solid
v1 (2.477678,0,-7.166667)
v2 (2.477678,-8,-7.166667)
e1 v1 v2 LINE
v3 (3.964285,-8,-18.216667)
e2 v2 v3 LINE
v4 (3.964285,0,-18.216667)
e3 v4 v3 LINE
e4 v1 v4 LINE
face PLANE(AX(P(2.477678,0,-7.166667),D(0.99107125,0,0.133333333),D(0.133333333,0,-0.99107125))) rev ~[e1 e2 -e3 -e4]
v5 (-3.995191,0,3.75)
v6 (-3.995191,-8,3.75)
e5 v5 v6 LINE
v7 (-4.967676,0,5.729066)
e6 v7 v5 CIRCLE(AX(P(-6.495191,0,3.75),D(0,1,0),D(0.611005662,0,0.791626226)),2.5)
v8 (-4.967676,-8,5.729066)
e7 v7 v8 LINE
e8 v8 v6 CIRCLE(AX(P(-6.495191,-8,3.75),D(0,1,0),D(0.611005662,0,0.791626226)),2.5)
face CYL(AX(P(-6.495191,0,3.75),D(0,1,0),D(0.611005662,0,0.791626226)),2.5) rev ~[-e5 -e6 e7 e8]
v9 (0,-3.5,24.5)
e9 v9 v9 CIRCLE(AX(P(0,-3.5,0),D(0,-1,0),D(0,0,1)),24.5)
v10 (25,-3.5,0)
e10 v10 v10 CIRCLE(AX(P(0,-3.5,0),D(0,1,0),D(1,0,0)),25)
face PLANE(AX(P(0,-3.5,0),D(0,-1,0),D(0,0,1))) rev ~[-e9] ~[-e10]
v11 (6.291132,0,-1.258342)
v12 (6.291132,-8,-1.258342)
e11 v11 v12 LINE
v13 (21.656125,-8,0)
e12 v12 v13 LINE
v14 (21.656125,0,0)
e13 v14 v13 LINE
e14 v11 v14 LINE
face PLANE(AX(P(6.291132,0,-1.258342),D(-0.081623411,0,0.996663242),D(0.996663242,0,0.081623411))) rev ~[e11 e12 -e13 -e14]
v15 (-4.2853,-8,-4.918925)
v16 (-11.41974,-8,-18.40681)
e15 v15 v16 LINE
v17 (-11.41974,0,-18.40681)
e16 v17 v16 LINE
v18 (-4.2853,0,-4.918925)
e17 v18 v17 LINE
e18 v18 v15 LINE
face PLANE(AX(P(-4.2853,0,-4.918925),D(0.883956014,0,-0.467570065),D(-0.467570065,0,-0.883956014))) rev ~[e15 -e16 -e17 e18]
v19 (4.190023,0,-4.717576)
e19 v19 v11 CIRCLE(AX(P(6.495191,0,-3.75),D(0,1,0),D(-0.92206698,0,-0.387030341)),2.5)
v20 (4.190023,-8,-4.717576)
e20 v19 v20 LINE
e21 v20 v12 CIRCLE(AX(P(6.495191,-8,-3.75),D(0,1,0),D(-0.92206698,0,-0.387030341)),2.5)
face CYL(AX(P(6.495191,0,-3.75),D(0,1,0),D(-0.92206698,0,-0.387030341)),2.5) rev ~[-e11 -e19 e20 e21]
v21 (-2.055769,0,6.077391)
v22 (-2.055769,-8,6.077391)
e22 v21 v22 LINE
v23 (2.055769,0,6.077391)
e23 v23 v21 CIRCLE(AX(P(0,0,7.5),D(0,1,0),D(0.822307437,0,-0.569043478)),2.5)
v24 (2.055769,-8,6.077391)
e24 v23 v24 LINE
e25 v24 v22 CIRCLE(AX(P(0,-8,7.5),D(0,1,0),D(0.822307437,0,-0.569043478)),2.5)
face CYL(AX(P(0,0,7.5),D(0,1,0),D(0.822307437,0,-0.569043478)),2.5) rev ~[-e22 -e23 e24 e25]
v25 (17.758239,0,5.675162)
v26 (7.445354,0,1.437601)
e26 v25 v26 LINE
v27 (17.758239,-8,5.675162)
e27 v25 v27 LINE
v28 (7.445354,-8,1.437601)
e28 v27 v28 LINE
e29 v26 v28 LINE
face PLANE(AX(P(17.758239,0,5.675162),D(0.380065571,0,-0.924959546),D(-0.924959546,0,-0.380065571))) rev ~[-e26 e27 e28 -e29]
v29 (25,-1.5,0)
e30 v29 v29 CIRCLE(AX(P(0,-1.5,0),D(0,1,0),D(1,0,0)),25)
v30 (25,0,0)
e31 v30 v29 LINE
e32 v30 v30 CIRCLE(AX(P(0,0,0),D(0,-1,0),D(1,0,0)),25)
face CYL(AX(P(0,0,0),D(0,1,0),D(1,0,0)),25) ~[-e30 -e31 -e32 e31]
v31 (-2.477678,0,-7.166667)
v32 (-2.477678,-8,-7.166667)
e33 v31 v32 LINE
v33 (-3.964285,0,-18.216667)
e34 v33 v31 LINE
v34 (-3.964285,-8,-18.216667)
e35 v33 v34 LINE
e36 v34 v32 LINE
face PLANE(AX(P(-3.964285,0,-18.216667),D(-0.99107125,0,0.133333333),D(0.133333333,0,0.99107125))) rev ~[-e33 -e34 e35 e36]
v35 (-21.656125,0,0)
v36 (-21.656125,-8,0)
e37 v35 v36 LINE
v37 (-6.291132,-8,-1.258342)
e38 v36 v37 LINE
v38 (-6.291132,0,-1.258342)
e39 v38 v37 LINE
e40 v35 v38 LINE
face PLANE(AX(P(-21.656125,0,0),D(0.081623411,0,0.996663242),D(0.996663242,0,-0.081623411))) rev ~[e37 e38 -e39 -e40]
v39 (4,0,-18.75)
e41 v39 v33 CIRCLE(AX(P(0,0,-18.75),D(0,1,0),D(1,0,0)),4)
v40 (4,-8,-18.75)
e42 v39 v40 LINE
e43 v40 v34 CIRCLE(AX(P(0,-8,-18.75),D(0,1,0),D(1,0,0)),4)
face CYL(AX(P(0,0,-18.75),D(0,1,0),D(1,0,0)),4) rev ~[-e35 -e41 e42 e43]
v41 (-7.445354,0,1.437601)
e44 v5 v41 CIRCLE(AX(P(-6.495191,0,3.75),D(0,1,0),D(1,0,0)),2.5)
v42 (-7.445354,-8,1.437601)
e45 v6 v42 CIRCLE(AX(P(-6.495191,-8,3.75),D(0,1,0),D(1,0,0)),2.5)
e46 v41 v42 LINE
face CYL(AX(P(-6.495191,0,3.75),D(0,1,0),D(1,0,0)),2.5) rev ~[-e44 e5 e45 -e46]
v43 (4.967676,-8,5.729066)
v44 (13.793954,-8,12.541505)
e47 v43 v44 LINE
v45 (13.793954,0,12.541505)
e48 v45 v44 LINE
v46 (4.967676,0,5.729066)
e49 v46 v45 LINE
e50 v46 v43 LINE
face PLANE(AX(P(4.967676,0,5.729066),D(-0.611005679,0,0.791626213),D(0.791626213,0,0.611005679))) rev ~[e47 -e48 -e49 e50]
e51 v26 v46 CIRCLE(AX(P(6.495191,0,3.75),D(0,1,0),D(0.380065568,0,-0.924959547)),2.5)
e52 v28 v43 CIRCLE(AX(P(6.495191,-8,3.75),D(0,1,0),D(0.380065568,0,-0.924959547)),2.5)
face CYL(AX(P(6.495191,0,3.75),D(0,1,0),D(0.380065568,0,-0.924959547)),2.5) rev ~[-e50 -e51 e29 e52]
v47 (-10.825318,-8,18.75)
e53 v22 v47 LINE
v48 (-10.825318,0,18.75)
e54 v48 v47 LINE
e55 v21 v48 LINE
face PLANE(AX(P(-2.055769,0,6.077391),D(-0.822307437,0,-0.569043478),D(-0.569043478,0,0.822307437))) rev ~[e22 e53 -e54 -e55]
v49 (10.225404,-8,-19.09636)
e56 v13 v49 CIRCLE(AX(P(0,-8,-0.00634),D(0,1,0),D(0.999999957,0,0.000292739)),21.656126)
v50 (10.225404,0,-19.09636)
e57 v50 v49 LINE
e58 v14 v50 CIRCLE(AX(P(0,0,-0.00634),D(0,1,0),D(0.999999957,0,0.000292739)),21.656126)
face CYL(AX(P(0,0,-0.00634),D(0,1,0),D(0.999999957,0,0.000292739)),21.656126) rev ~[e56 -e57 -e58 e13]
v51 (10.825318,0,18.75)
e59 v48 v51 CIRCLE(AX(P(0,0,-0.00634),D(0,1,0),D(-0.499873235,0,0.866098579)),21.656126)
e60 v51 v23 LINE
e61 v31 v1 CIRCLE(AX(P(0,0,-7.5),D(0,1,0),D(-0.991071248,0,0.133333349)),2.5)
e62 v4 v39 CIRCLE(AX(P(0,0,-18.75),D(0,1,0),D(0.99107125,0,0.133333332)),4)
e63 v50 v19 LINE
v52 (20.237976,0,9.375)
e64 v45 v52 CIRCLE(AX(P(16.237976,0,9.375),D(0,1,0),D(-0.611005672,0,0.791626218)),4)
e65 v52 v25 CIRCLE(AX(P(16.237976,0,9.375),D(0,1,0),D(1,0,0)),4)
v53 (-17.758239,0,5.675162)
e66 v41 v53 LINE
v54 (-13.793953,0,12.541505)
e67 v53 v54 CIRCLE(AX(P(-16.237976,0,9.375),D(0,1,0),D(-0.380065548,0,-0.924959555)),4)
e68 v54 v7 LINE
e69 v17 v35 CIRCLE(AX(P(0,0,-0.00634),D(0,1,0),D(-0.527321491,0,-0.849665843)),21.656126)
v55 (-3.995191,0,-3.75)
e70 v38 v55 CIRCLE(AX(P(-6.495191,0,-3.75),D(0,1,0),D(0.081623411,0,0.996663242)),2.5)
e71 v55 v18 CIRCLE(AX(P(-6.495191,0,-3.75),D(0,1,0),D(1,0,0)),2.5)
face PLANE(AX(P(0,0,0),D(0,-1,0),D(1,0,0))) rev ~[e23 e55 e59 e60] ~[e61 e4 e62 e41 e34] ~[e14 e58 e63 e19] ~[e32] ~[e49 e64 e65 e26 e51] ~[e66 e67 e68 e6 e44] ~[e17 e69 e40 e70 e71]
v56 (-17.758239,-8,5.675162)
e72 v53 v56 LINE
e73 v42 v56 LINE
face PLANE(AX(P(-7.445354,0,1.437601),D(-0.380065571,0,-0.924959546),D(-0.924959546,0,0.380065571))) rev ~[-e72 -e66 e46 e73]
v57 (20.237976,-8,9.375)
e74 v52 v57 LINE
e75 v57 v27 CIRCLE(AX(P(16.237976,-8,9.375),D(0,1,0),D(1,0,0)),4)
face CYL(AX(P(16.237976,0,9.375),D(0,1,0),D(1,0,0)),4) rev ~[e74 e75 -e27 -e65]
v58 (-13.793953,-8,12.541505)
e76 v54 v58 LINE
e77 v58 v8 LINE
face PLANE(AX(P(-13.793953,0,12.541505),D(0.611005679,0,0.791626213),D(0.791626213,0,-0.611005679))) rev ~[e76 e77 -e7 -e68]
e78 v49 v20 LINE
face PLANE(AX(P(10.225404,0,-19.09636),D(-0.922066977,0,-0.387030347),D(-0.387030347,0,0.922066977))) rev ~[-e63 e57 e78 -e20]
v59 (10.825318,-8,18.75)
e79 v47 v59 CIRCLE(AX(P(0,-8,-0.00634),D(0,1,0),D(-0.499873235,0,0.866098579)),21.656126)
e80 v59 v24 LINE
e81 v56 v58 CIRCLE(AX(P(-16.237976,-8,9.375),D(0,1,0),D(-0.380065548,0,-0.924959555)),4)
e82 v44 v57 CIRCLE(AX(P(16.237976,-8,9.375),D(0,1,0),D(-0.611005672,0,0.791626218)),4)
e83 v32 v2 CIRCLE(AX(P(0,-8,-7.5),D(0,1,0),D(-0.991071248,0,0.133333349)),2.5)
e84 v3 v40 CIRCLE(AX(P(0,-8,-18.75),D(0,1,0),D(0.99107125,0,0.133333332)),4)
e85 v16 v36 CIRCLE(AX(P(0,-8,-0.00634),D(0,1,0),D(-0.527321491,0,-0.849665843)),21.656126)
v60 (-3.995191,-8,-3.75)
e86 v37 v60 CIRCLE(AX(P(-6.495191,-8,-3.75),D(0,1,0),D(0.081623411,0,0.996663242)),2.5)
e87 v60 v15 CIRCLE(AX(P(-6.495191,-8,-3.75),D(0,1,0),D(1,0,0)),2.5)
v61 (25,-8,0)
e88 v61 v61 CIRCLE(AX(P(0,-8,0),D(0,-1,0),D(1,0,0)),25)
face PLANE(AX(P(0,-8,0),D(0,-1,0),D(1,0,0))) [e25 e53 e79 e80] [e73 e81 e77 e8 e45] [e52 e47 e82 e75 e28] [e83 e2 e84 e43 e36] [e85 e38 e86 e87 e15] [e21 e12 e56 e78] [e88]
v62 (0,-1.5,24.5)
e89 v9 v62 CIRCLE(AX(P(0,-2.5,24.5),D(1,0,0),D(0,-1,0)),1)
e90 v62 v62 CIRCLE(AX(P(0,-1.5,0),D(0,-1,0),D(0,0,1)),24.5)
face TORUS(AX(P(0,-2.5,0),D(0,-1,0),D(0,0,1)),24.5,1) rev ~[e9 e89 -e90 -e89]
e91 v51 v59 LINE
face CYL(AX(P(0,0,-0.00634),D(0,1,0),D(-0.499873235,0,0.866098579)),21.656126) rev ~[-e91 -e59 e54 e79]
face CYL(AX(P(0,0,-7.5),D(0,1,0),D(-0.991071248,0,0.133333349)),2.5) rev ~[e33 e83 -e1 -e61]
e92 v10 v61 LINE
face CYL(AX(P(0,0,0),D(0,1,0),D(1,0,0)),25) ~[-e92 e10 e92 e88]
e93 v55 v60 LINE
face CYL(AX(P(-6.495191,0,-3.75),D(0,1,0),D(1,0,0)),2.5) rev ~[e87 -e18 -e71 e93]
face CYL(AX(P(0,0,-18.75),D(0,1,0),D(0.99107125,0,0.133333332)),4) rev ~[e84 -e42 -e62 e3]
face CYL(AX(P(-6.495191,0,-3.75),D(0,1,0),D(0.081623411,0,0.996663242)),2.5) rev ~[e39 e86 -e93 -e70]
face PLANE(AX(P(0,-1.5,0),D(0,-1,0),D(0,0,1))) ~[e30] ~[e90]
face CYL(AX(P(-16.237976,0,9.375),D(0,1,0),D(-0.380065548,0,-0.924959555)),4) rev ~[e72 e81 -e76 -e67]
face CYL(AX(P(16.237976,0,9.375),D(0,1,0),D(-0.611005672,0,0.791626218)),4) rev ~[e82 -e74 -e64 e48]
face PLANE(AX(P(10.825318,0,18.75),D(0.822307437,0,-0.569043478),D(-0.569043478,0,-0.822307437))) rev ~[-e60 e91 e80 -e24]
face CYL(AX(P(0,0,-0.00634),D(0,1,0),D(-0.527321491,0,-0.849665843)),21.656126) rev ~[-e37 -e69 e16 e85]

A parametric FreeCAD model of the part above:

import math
import FreeCAD as App
import Part
import Sketcher
from FreeCAD import Vector

doc = App.newDocument("Part")
body = doc.addObject("PartDesign::Body", "Body")

# Sketch on XZ plane
sketch1 = body.newObject("Sketcher::SketchObject", "Sketch")
sketch1.AttachmentSupport = (doc.getObject("XZ_Plane"), [""])
sketch1.MapMode = "FlatFace"
sketch1.addGeometry(Part.Circle(Vector(0, 0, 0), Vector(0, 0, 1), 25), False)
sketch1.addGeometry(Part.LineSegment(Vector(-3.964285, -18.216667, 0), Vector(-2.477678, -7.166667, 0)), False)
sketch1.addGeometry(Part.ArcOfCircle(Part.Circle(Vector(0, -7.5, 0), Vector(0, 0, 1), 2.5), math.radians(7.662255), math.radians(172.337743)), False)
sketch1.addGeometry(Part.LineSegment(Vector(2.477678, -7.166667, 0), Vector(3.964285, -18.216667, 0)), False)
sketch1.addGeometry(Part.ArcOfCircle(Part.Circle(Vector(0, -18.75, 0), Vector(0, 0, 1), 4), math.radians(0), math.radians(7.662256)), False)
sketch1.addGeometry(Part.ArcOfCircle(Part.Circle(Vector(0, -18.75, 0), Vector(0, 0, 1), 4), math.radians(172.337743), math.radians(360)), False)
sketch1.addGeometry(Part.LineSegment(Vector(-21.656125, 0, 0), Vector(-6.291132, -1.258342, 0)), False)
sketch1.addGeometry(Part.ArcOfCircle(Part.Circle(Vector(-6.495191, -3.75, 0), Vector(0, 0, 1), 2.5), math.radians(0), math.radians(85.318114)), False)
sketch1.addGeometry(Part.ArcOfCircle(Part.Circle(Vector(-6.495191, -3.75, 0), Vector(0, 0, 1), 2.5), math.radians(-27.876679), math.radians(0)), False)
sketch1.addGeometry(Part.LineSegment(Vector(-4.2853, -4.918925, 0), Vector(-11.41974, -18.40681, 0)), False)
sketch1.addGeometry(Part.ArcOfCircle(Part.Circle(Vector(0, -0.00634, 0), Vector(0, 0, 1), 21.656126), math.radians(179.983227), math.radians(238.175343)), False)
sketch1.addGeometry(Part.LineSegment(Vector(10.225404, -19.09636, 0), Vector(4.190023, -4.717576, 0)), False)
sketch1.addGeometry(Part.ArcOfCircle(Part.Circle(Vector(6.495191, -3.75, 0), Vector(0, 0, 1), 2.5), math.radians(94.681885), math.radians(202.769844)), False)
sketch1.addGeometry(Part.LineSegment(Vector(6.291132, -1.258342, 0), Vector(21.656125, 0, 0)), False)
sketch1.addGeometry(Part.ArcOfCircle(Part.Circle(Vector(0, -0.00634, 0), Vector(0, 0, 1), 21.656126), math.radians(-61.824657), math.radians(0.016773)), False)
sketch1.addGeometry(Part.LineSegment(Vector(-13.793953, 12.541505, 0), Vector(-4.967676, 5.729066, 0)), False)
sketch1.addGeometry(Part.ArcOfCircle(Part.Circle(Vector(-6.495191, 3.75, 0), Vector(0, 0, 1), 2.5), math.radians(0), math.radians(52.337746)), False)
sketch1.addGeometry(Part.ArcOfCircle(Part.Circle(Vector(-6.495191, 3.75, 0), Vector(0, 0, 1), 2.5), math.radians(-112.337744), math.radians(0)), False)
sketch1.addGeometry(Part.LineSegment(Vector(-7.445354, 1.437601, 0), Vector(-17.758239, 5.675162, 0)), False)
sketch1.addGeometry(Part.ArcOfCircle(Part.Circle(Vector(-16.237976, 9.375, 0), Vector(0, 0, 1), 4), math.radians(52.337742), math.radians(247.662257)), False)
sketch1.addGeometry(Part.LineSegment(Vector(17.758239, 5.675162, 0), Vector(7.445354, 1.437601, 0)), False)
sketch1.addGeometry(Part.ArcOfCircle(Part.Circle(Vector(6.495191, 3.75, 0), Vector(0, 0, 1), 2.5), math.radians(127.662255), math.radians(292.337744)), False)
sketch1.addGeometry(Part.LineSegment(Vector(4.967676, 5.729066, 0), Vector(13.793954, 12.541505, 0)), False)
sketch1.addGeometry(Part.ArcOfCircle(Part.Circle(Vector(16.237976, 9.375, 0), Vector(0, 0, 1), 4), math.radians(0), math.radians(127.662255)), False)
sketch1.addGeometry(Part.ArcOfCircle(Part.Circle(Vector(16.237976, 9.375, 0), Vector(0, 0, 1), 4), math.radians(-67.662254), math.radians(0)), False)
sketch1.addGeometry(Part.LineSegment(Vector(10.825318, 18.75, 0), Vector(2.055769, 6.077391, 0)), False)
sketch1.addGeometry(Part.ArcOfCircle(Part.Circle(Vector(0, 7.5, 0), Vector(0, 0, 1), 2.5), math.radians(-145.316449), math.radians(-34.683551)), False)
sketch1.addGeometry(Part.LineSegment(Vector(-2.055769, 6.077391, 0), Vector(-10.825318, 18.75, 0)), False)
sketch1.addGeometry(Part.ArcOfCircle(Part.Circle(Vector(0, -0.00634, 0), Vector(0, 0, 1), 21.656126), math.radians(60.008386), math.radians(119.991614)), False)
sketch1.addConstraint(Sketcher.Constraint("Tangent", 1, 2, 2, 2))
sketch1.addConstraint(Sketcher.Constraint("Tangent", 2, 1, 3, 1))
sketch1.addConstraint(Sketcher.Constraint("Tangent", 3, 2, 4, 2))
sketch1.addConstraint(Sketcher.Constraint("Tangent", 4, 1, 5, 2))
sketch1.addConstraint(Sketcher.Constraint("Tangent", 5, 1, 1, 1))
sketch1.addConstraint(Sketcher.Constraint("Tangent", 6, 2, 7, 2))
sketch1.addConstraint(Sketcher.Constraint("Tangent", 7, 1, 8, 2))
sketch1.addConstraint(Sketcher.Constraint("Tangent", 8, 1, 9, 1))
sketch1.addConstraint(Sketcher.Constraint("Coincident", 9, 2, 10, 2))
sketch1.addConstraint(Sketcher.Constraint("Coincident", 10, 1, 6, 1))
sketch1.addConstraint(Sketcher.Constraint("Tangent", 11, 2, 12, 2))
sketch1.addConstraint(Sketcher.Constraint("Tangent", 12, 1, 13, 1))
sketch1.addConstraint(Sketcher.Constraint("Coincident", 13, 2, 14, 2))
sketch1.addConstraint(Sketcher.Constraint("Coincident", 14, 1, 11, 1))
sketch1.addConstraint(Sketcher.Constraint("Tangent", 15, 2, 16, 2))
sketch1.addConstraint(Sketcher.Constraint("Tangent", 16, 1, 17, 2))
sketch1.addConstraint(Sketcher.Constraint("Tangent", 17, 1, 18, 1))
sketch1.addConstraint(Sketcher.Constraint("Tangent", 18, 2, 19, 2))
sketch1.addConstraint(Sketcher.Constraint("Tangent", 19, 1, 15, 1))
sketch1.addConstraint(Sketcher.Constraint("Tangent", 20, 2, 21, 2))
sketch1.addConstraint(Sketcher.Constraint("Tangent", 21, 1, 22, 1))
sketch1.addConstraint(Sketcher.Constraint("Tangent", 22, 2, 23, 2))
sketch1.addConstraint(Sketcher.Constraint("Tangent", 23, 1, 24, 2))
sketch1.addConstraint(Sketcher.Constraint("Tangent", 24, 1, 20, 1))
sketch1.addConstraint(Sketcher.Constraint("Tangent", 25, 2, 26, 2))
sketch1.addConstraint(Sketcher.Constraint("Tangent", 26, 1, 27, 1))
sketch1.addConstraint(Sketcher.Constraint("Coincident", 27, 2, 28, 2))
sketch1.addConstraint(Sketcher.Constraint("Coincident", 28, 1, 25, 1))
sketch1.addConstraint(Sketcher.Constraint("Coincident", 0, 3, -1, 1))
sketch1.addConstraint(Sketcher.Constraint("Coincident", 14, 3, 10, 3))
sketch1.addConstraint(Sketcher.Constraint("Coincident", 28, 3, 10, 3))
sketch1.addConstraint(Sketcher.Constraint("Equal", 4, 5))
sketch1.addConstraint(Sketcher.Constraint("Equal", 2, 7))
sketch1.addConstraint(Sketcher.Constraint("Equal", 7, 8))
sketch1.addConstraint(Sketcher.Constraint("Equal", 8, 12))
sketch1.addConstraint(Sketcher.Constraint("Equal", 10, 14))
sketch1.addConstraint(Sketcher.Constraint("Equal", 12, 16))
sketch1.addConstraint(Sketcher.Constraint("Equal", 16, 17))
sketch1.addConstraint(Sketcher.Constraint("Equal", 5, 19))
sketch1.addConstraint(Sketcher.Constraint("Equal", 17, 21))
sketch1.addConstraint(Sketcher.Constraint("Equal", 19, 23))
sketch1.addConstraint(Sketcher.Constraint("Equal", 23, 24))
sketch1.addConstraint(Sketcher.Constraint("Equal", 21, 26))
sketch1.addConstraint(Sketcher.Constraint("Equal", 14, 28))
sketch1.addConstraint(Sketcher.Constraint("Symmetric", 12, 3, 16, 3, -1, 1))
sketch1.addConstraint(Sketcher.Constraint("Symmetric", 7, 3, 21, 3, -1, 1))
sketch1.addConstraint(Sketcher.Constraint("Symmetric", 2, 3, 26, 3, -1, 1))
sketch1.addConstraint(Sketcher.Constraint("Symmetric", 10, 1, 13, 2, -1, 1))
sketch1.addConstraint(Sketcher.Constraint("Symmetric", 7, 3, 12, 3, -2))
sketch1.addConstraint(Sketcher.Constraint("Symmetric", 19, 3, 23, 3, -2))
sketch1.addConstraint(Sketcher.Constraint("Symmetric", 1, 2, 2, 1, -2))
sketch1.addConstraint(Sketcher.Constraint("PointOnObject", 10, 1, -1))
sketch1.addConstraint(Sketcher.Constraint("Horizontal", 5, 3, 4, 1))
sketch1.addConstraint(Sketcher.Constraint("Horizontal", 12, 3, 7, 1))
sketch1.addConstraint(Sketcher.Constraint("Horizontal", 21, 3, 16, 1))
sketch1.addConstraint(Sketcher.Constraint("Horizontal", 24, 3, 23, 1))
sketch1.addConstraint(Sketcher.Constraint("Horizontal", 25, 2, 26, 1))
sketch1.addConstraint(Sketcher.Constraint("Equal", 3, 15))
sketch1.addConstraint(Sketcher.Constraint("Diameter", 0, 50.0))
sketch1.addConstraint(Sketcher.Constraint("Radius", 4, 4.0))
sketch1.addConstraint(Sketcher.Constraint("Radius", 2, 2.5))
sketch1.addConstraint(Sketcher.Constraint("DistanceY", 5, 3, 7, 3, 15.0))
sketch1.addConstraint(Sketcher.Constraint("DistanceY", 2, 3, -1, 1, 7.5))
sketch1.addConstraint(Sketcher.Constraint("DistanceY", 7, 3, 16, 3, 7.5))
sketch1.addConstraint(Sketcher.Constraint("DistanceY", -1, 1, 27, 2, 18.75))
sketch1.addConstraint(Sketcher.Constraint("DistanceY", -1, 1, 19, 3, 9.375))
sketch1.addConstraint(Sketcher.Constraint("Radius", 10, 21.656126))
sketch1.addConstraint(Sketcher.Constraint("DistanceX", 8, 1, -1, 1, 4.2853))
sketch1.addConstraint(Sketcher.Constraint("DistanceX", 7, 3, -1, 1, 6.495191))
sketch1.addConstraint(Sketcher.Constraint("DistanceY", 10, 3, -1, 1, 0.00634))
sketch1.addConstraint(Sketcher.Constraint("DistanceY", 14, 1, -1, 1, 19.09636))
pad1 = body.newObject("PartDesign::Pad", "Pad")
pad1.Profile = sketch1
pad1.Length = 8

# Sketch on YZ plane
sketch2 = body.newObject("Sketcher::SketchObject", "Sketch001")
sketch2.AttachmentSupport = (doc.getObject("YZ_Plane"), [""])
sketch2.MapMode = "FlatFace"
sketch2.addGeometry(Part.LineSegment(Vector(-3.5, 25, 0), Vector(-3.5, 24.5, 0)), False)
sketch2.addGeometry(Part.ArcOfCircle(Part.Circle(Vector(-2.5, 24.5, 0), Vector(0, 0, 1), 1), math.radians(180), math.radians(360)), False)
sketch2.addGeometry(Part.LineSegment(Vector(-1.5, 24.5, 0), Vector(-1.5, 25, 0)), False)
sketch2.addGeometry(Part.LineSegment(Vector(-1.5, 25, 0), Vector(-1.633975, 25, 0)), False)
sketch2.addGeometry(Part.ArcOfCircle(Part.Circle(Vector(-2.5, 24.5, 0), Vector(0, 0, 1), 1), math.radians(30), math.radians(150)), False)
sketch2.addGeometry(Part.LineSegment(Vector(-3.366025, 25, 0), Vector(-3.5, 25, 0)), False)
sketch2.addConstraint(Sketcher.Constraint("Tangent", 0, 2, 1, 1))
sketch2.addConstraint(Sketcher.Constraint("Tangent", 1, 2, 2, 1))
sketch2.addConstraint(Sketcher.Constraint("Coincident", 2, 2, 3, 1))
sketch2.addConstraint(Sketcher.Constraint("Coincident", 3, 2, 4, 1))
sketch2.addConstraint(Sketcher.Constraint("Coincident", 4, 2, 5, 1))
sketch2.addConstraint(Sketcher.Constraint("Coincident", 5, 2, 0, 1))
sketch2.addConstraint(Sketcher.Constraint("Vertical", 0))
sketch2.addConstraint(Sketcher.Constraint("Vertical", 2))
sketch2.addConstraint(Sketcher.Constraint("Horizontal", 3))
sketch2.addConstraint(Sketcher.Constraint("Horizontal", 5))
sketch2.addConstraint(Sketcher.Constraint("Coincident", 4, 3, 1, 3))
sketch2.addConstraint(Sketcher.Constraint("Equal", 1, 4))
sketch2.addConstraint(Sketcher.Constraint("Horizontal", 3, 2, 4, 2))
sketch2.addConstraint(Sketcher.Constraint("Radius", 1, 1.0))
sketch2.addConstraint(Sketcher.Constraint("DistanceY", 0, 2, 0, 1, 0.5))
sketch2.addConstraint(Sketcher.Constraint("DistanceY", -1, 1, 2, 2, 25.0))
sketch2.addConstraint(Sketcher.Constraint("DistanceX", 1, 3, -1, 1, 2.5))
groove = body.newObject("PartDesign::Groove", "Groove")
groove.Profile = sketch2
groove.ReferenceAxis = (sketch2, ["H_Axis"])
groove.Angle = 360

doc.recompute()
